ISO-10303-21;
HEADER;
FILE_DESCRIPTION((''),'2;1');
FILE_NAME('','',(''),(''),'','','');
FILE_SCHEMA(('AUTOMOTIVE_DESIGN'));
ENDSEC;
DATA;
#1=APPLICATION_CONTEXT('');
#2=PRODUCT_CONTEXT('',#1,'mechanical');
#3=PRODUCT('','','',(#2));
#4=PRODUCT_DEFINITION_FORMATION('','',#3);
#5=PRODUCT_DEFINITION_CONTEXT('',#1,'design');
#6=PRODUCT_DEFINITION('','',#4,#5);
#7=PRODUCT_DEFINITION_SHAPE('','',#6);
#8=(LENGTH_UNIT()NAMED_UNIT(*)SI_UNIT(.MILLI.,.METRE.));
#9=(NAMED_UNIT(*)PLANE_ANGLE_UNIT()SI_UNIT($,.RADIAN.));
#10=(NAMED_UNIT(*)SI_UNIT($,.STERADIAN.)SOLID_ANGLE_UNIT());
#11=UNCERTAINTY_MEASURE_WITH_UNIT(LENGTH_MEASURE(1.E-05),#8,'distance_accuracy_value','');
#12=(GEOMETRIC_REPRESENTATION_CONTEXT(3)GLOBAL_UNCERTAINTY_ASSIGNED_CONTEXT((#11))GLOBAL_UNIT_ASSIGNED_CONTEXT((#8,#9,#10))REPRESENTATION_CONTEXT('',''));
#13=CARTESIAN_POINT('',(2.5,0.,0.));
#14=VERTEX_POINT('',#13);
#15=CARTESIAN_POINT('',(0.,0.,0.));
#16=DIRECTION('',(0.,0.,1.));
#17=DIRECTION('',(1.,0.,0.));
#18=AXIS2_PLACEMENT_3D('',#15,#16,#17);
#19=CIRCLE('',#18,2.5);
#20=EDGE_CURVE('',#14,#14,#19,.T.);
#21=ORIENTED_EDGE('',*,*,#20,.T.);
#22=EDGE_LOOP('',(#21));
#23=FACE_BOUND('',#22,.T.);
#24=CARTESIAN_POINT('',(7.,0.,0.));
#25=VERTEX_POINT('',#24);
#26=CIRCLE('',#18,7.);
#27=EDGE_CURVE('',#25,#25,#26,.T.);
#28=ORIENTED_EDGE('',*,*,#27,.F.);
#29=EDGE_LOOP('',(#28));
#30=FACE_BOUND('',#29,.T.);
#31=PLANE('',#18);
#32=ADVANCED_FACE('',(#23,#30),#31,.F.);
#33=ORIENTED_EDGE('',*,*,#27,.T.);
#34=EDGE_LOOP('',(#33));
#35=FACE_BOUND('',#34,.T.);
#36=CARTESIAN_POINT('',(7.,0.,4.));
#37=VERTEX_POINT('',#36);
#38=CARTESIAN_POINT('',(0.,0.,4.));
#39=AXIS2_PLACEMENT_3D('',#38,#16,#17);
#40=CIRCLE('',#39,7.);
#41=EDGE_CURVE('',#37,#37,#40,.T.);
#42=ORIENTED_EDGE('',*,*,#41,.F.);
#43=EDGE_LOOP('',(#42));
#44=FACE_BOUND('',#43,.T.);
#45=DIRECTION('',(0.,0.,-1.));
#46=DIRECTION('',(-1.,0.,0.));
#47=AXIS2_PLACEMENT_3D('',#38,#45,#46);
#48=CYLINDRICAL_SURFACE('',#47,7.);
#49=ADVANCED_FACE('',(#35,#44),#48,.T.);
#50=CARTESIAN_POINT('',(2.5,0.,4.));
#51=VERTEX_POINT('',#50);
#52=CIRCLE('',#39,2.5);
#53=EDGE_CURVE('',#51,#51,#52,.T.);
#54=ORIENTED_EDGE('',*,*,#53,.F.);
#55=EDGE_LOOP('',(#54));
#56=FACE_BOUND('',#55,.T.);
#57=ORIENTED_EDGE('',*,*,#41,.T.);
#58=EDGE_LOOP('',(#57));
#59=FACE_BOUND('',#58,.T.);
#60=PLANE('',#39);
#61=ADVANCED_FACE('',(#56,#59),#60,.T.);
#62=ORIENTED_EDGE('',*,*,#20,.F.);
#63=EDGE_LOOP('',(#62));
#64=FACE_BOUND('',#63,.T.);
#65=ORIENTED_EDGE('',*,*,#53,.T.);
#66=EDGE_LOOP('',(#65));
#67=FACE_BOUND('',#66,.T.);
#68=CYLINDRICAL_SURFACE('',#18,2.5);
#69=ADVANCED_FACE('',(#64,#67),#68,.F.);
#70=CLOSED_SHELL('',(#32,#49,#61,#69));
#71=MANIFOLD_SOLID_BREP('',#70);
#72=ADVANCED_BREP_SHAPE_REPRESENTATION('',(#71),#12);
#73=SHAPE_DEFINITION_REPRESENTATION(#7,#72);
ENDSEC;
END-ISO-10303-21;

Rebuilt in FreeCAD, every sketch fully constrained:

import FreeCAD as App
import Part
import Sketcher
from FreeCAD import Vector
Q = App.Units.Quantity

doc = App.newDocument("Part")
params = doc.addObject("Spreadsheet::Sheet", "Params")
for row, (alias, value) in enumerate([
    ("sketch1_diameter", "14 mm"),
    ("pad1_length", "4 mm"),
    ("sketch2_diameter", "5 mm"),
    ("pocket1_length", "4 mm"),
], start=1):
    params.set(f"A{row}", alias)
    params.set(f"B{row}", "=" + value)
    params.setAlias(f"B{row}", alias)

body = doc.addObject("PartDesign::Body", "Body")

# Sketch on XY plane
sketch1 = doc.addObject("Sketcher::SketchObject", "Sketch")
body.addObject(sketch1)
sketch1.AttachmentSupport = (doc.XY_Plane, [""])
sketch1.MapMode = "FlatFace"
sketch1.addGeometry(Part.Circle(Vector(0, 0, 0), Vector(0, 0, 1), 7), False)
sketch1.addConstraint(Sketcher.Constraint("Coincident", 0, 3, -1, 1))
sketch1.addConstraint(Sketcher.Constraint("Diameter", 0, Q("14 mm")))
sketch1.setExpression("Constraints[1]", "Params.sketch1_diameter")
pad1 = doc.addObject("PartDesign::Pad", "Pad")
body.addObject(pad1)
pad1.Profile = sketch1
pad1.setExpression("Length", "Params.pad1_length")

# Sketch on XY plane
sketch2 = doc.addObject("Sketcher::SketchObject", "Sketch001")
body.addObject(sketch2)
sketch2.AttachmentSupport = (doc.XY_Plane, [""])
sketch2.MapMode = "FlatFace"
sketch2.AttachmentOffset = App.Placement(Vector(0, 0, 4), App.Rotation())
sketch2.addGeometry(Part.Circle(Vector(0, 0, 0), Vector(0, 0, 1), 2.5), False)
sketch2.addConstraint(Sketcher.Constraint("Coincident", 0, 3, -1, 1))
sketch2.addConstraint(Sketcher.Constraint("Diameter", 0, Q("5 mm")))
sketch2.setExpression("Constraints[1]", "Params.sketch2_diameter")
pocket1 = doc.addObject("PartDesign::Pocket", "Pocket")
body.addObject(pocket1)
pocket1.Profile = sketch2
pocket1.setExpression("Length", "Params.pocket1_length")

doc.recompute()
